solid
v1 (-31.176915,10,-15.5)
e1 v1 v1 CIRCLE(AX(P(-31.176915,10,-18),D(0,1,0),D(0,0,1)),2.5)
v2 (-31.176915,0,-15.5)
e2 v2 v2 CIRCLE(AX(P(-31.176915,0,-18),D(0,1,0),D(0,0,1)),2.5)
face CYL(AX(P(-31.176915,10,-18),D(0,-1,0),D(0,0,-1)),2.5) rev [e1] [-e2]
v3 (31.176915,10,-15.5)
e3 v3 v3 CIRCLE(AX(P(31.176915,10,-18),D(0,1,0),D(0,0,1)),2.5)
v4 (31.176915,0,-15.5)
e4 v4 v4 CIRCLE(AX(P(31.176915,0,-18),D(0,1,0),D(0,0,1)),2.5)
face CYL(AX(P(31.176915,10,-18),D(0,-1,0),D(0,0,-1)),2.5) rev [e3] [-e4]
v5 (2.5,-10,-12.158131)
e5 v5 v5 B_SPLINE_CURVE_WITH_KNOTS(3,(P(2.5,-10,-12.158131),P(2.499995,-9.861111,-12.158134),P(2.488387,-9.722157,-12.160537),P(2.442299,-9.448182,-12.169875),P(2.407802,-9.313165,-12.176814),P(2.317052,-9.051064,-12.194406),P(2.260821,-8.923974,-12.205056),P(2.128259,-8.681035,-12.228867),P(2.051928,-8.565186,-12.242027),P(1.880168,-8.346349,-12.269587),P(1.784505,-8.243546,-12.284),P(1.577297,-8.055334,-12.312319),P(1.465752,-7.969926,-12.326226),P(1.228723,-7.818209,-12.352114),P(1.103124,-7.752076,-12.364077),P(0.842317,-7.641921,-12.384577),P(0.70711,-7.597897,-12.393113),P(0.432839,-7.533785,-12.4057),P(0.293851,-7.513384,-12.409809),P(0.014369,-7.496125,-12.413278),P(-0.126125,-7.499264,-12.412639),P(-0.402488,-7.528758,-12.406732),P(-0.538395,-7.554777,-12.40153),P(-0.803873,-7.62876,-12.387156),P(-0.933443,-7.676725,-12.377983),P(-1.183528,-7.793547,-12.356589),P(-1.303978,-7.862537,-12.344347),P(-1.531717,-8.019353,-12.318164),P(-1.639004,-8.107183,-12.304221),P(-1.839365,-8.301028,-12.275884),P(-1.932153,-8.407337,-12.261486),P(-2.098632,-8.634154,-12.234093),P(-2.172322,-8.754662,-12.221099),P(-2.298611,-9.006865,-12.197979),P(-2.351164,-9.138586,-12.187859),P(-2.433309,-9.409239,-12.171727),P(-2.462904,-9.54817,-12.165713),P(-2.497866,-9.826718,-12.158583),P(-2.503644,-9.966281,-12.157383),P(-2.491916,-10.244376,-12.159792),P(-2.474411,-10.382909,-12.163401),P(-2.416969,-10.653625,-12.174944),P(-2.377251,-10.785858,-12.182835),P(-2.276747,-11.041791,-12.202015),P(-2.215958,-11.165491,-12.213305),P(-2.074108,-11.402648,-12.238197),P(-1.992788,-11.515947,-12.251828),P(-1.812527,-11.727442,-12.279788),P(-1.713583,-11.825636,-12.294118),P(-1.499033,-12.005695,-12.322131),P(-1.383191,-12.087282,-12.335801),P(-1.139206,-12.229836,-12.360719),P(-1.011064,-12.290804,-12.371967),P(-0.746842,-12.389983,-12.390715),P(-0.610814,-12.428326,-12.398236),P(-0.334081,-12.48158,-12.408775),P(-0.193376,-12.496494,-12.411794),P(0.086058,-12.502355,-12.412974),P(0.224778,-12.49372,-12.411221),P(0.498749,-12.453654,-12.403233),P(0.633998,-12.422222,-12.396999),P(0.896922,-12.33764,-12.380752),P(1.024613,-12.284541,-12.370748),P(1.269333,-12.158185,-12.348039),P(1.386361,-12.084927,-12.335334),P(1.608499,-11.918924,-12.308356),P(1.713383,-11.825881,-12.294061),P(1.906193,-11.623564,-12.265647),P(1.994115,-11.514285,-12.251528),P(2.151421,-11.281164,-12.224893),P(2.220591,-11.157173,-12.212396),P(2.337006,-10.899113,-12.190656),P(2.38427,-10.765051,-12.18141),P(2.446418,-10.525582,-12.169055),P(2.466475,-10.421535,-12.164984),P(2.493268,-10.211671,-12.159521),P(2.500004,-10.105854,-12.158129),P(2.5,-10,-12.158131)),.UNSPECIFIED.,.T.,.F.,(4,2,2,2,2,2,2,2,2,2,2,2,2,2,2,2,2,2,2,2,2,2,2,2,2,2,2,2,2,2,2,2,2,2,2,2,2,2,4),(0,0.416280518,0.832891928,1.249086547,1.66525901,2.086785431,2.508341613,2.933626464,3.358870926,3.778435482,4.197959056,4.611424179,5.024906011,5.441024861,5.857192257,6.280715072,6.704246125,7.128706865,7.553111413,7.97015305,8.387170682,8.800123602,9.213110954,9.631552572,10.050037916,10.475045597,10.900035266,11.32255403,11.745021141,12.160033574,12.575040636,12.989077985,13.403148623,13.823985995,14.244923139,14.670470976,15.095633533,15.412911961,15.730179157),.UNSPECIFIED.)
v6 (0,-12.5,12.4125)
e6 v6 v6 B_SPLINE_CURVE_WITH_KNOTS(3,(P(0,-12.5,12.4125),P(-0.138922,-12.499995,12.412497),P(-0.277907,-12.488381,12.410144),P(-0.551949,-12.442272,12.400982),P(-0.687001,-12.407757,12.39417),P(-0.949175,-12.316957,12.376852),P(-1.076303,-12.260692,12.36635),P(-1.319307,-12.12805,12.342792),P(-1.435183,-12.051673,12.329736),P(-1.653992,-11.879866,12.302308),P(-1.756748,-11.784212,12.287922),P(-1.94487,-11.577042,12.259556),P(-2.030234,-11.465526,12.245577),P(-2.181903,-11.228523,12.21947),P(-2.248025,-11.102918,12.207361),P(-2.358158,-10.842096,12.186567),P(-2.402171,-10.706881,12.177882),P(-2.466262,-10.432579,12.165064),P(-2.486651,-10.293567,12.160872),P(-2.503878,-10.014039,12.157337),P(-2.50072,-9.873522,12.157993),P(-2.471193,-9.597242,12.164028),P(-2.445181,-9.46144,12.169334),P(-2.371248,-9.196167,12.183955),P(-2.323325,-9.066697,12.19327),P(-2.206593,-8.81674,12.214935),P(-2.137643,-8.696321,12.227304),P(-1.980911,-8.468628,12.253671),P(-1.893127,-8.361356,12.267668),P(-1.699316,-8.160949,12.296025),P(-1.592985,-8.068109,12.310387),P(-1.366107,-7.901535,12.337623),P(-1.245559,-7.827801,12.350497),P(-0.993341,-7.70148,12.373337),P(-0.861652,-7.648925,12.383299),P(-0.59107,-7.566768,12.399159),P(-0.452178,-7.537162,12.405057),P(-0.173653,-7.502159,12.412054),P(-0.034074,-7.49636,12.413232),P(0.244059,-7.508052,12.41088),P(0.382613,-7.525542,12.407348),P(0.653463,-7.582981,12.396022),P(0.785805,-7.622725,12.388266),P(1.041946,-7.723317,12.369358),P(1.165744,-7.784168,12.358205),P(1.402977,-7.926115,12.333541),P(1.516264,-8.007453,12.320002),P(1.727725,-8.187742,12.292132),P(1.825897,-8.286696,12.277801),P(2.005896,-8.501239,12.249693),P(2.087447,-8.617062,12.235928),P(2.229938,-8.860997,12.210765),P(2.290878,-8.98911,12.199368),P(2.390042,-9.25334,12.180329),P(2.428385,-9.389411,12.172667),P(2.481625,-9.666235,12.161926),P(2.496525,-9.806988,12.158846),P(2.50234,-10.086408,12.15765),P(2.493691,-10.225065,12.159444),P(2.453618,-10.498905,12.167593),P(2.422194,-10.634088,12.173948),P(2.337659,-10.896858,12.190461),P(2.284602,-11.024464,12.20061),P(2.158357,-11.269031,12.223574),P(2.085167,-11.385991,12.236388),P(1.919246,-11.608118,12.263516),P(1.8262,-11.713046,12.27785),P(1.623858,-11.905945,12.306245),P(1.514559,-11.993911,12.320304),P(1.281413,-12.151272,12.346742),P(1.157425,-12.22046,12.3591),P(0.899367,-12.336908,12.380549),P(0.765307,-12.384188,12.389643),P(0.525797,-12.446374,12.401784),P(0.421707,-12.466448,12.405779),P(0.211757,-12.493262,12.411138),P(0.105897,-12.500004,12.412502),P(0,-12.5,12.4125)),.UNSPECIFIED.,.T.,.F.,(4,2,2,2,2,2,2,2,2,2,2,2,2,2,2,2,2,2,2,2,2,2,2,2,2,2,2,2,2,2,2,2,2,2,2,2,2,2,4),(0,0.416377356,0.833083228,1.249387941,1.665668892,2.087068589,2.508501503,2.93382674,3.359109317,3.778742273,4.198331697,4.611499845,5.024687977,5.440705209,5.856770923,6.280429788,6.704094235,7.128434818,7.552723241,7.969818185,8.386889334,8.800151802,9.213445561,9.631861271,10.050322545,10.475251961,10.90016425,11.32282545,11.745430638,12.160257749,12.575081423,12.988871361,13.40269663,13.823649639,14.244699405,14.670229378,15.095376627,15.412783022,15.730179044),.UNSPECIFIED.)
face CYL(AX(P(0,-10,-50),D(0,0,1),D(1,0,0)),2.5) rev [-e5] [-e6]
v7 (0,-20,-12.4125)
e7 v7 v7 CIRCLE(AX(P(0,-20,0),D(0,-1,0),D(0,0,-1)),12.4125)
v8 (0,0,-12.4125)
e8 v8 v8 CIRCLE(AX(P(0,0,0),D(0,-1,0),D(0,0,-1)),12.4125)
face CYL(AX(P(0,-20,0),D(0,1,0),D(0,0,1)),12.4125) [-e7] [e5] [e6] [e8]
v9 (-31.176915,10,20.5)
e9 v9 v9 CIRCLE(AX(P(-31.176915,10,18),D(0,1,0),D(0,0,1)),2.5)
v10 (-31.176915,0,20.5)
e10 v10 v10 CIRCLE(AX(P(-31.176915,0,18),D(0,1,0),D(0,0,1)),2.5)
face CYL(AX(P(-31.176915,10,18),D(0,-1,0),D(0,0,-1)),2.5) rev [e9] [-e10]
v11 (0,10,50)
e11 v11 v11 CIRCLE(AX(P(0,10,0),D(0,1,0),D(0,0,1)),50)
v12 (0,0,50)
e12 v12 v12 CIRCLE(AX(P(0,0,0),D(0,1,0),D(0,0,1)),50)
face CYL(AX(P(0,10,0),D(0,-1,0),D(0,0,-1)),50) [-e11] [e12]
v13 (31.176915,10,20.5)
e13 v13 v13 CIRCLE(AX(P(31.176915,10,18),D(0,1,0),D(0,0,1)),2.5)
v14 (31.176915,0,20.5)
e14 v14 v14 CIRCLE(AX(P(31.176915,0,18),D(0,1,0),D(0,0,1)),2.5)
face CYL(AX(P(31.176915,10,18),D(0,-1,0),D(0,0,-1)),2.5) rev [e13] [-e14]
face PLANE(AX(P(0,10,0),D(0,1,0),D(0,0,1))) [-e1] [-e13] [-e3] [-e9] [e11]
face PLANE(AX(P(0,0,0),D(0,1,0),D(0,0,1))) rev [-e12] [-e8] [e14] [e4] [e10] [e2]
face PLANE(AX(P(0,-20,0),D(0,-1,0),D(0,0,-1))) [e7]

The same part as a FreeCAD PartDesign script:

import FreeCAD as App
import Part
import Sketcher
Q = App.Units.Quantity

doc = App.newDocument("Part")
body = doc.addObject("PartDesign::Body", "Body")

# Sketch on XZ plane
sketch1 = body.newObject("Sketcher::SketchObject", "Sketch")
sketch1.AttachmentSupport = (doc.getObject("XZ_Plane"), [""])
sketch1.MapMode = "FlatFace"
sketch1.addGeometry([
    Part.Circle(App.Vector(0, 0, 0), App.Vector(0, 0, 1), 50),  # 0
    Part.Circle(App.Vector(-31.2, 18, 0), App.Vector(0, 0, 1), 2.5),  # 1
    Part.Circle(App.Vector(31.2, 18, 0), App.Vector(0, 0, 1), 2.5),  # 2
    Part.Circle(App.Vector(-31.2, -18, 0), App.Vector(0, 0, 1), 2.5),  # 3
    Part.Circle(App.Vector(31.2, -18, 0), App.Vector(0, 0, 1), 2.5),  # 4
], False)
sketch1.addConstraint([
    Sketcher.Constraint("Coincident", 0, 3, -1, 1),
    Sketcher.Constraint("Equal", 1, 2),
    Sketcher.Constraint("Equal", 2, 3),
    Sketcher.Constraint("Equal", 3, 4),
    Sketcher.Constraint("Symmetric", 2, 3, 3, 3, -1, 1),
    Sketcher.Constraint("Symmetric", 1, 3, 4, 3, -1, 1),
    Sketcher.Constraint("Symmetric", 1, 3, 2, 3, -2),
    Sketcher.Constraint("Diameter", 0, Q("100 mm")),
    Sketcher.Constraint("Diameter", 1, Q("5 mm")),
    Sketcher.Constraint("DistanceY", -1, 1, 1, 3, Q("18 mm")),
    Sketcher.Constraint("DistanceX", 1, 3, 2, 3, Q("62.353829 mm")),
])
pad1 = body.newObject("PartDesign::Pad", "Pad")
pad1.Profile = sketch1
pad1.Length = 10
pad1.Reversed = True

# Sketch on XZ plane
sketch2 = body.newObject("Sketcher::SketchObject", "Sketch001")
sketch2.AttachmentSupport = (doc.getObject("XZ_Plane"), [""])
sketch2.MapMode = "FlatFace"
sketch2.addGeometry(Part.Circle(App.Vector(0, 0, 0), App.Vector(0, 0, 1), 12), False)
sketch2.addConstraint([
    Sketcher.Constraint("Coincident", 0, 3, -1, 1),
    Sketcher.Constraint("Diameter", 0, Q("24.825 mm")),
])
pad2 = body.newObject("PartDesign::Pad", "Pad001")
pad2.Profile = sketch2
pad2.Length = 20

# Sketch on XY plane
sketch3 = body.newObject("Sketcher::SketchObject", "Sketch002")
sketch3.AttachmentSupport = (doc.getObject("XY_Plane"), [""])
sketch3.MapMode = "FlatFace"
sketch3.addGeometry(Part.Circle(App.Vector(0, -10, 0), App.Vector(0, 0, 1), 2.5), False)
sketch3.addConstraint([
    Sketcher.Constraint("PointOnObject", 0, 3, -2),
    Sketcher.Constraint("Diameter", 0, Q("5 mm")),
    Sketcher.Constraint("DistanceY", 0, 3, -1, 1, Q("10 mm")),
])
pocket1 = body.newObject("PartDesign::Pocket", "Pocket")
pocket1.Profile = sketch3
pocket1.Type = "ThroughAll"
pocket1.Midplane = True

doc.recompute()
